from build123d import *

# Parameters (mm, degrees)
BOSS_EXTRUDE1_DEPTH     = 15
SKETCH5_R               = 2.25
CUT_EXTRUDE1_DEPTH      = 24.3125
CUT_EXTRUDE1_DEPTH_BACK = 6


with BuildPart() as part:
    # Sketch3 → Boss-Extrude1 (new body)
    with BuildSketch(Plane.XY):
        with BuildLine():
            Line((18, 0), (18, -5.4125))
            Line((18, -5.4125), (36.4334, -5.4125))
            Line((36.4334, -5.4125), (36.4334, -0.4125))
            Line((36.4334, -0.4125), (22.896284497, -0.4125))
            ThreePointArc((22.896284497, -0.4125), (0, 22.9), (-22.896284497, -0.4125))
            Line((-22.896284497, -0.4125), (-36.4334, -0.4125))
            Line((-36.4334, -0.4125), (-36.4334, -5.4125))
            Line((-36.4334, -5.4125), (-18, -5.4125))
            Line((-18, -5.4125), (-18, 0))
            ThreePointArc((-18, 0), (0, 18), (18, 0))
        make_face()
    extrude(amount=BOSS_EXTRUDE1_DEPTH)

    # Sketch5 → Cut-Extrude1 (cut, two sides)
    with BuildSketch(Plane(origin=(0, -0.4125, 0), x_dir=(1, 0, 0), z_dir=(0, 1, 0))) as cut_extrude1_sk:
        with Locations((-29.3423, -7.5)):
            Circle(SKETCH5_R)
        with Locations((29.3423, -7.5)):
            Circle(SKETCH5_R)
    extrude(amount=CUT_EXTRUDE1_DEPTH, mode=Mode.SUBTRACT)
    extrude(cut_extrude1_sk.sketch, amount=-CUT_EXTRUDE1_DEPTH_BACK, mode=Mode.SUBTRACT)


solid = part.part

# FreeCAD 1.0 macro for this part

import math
import FreeCAD as App
import Part
import Sketcher
from FreeCAD import Vector

doc = App.newDocument("Part")
body = doc.addObject("PartDesign::Body", "Body")

# Sketch on XY plane
sketch1 = body.newObject("Sketcher::SketchObject", "Sketch")
sketch1.AttachmentSupport = (doc.getObject("XY_Plane"), [""])
sketch1.MapMode = "FlatFace"
sketch1.addGeometry(Part.LineSegment(Vector(18, 0, 0), Vector(18, -5, 0)), False)
sketch1.addGeometry(Part.LineSegment(Vector(18, -5, 0), Vector(36, -5, 0)), False)
sketch1.addGeometry(Part.LineSegment(Vector(36, -5, 0), Vector(36, 0, 0)), False)
sketch1.addGeometry(Part.LineSegment(Vector(36, 0, 0), Vector(23, 0, 0)), False)
sketch1.addGeometry(Part.ArcOfCircle(Part.Circle(Vector(0, 0, 0), Vector(0, 0, 1), 23), math.radians(-1), math.radians(181)), False)
sketch1.addGeometry(Part.LineSegment(Vector(-23, 0, 0), Vector(-36, 0, 0)), False)
sketch1.addGeometry(Part.LineSegment(Vector(-36, 0, 0), Vector(-36, -5, 0)), False)
sketch1.addGeometry(Part.LineSegment(Vector(-36, -5, 0), Vector(-18, -5, 0)), False)
sketch1.addGeometry(Part.LineSegment(Vector(-18, -5, 0), Vector(-18, 0, 0)), False)
sketch1.addGeometry(Part.ArcOfCircle(Part.Circle(Vector(0, 0, 0), Vector(0, 0, 1), 18), math.radians(0), math.radians(180)), False)
sketch1.addConstraint(Sketcher.Constraint("Coincident", 0, 2, 1, 1))
sketch1.addConstraint(Sketcher.Constraint("Coincident", 1, 2, 2, 1))
sketch1.addConstraint(Sketcher.Constraint("Coincident", 2, 2, 3, 1))
sketch1.addConstraint(Sketcher.Constraint("Coincident", 3, 2, 4, 1))
sketch1.addConstraint(Sketcher.Constraint("Coincident", 4, 2, 5, 1))
sketch1.addConstraint(Sketcher.Constraint("Coincident", 5, 2, 6, 1))
sketch1.addConstraint(Sketcher.Constraint("Coincident", 6, 2, 7, 1))
sketch1.addConstraint(Sketcher.Constraint("Coincident", 7, 2, 8, 1))
sketch1.addConstraint(Sketcher.Constraint("Tangent", 8, 2, 9, 2))
sketch1.addConstraint(Sketcher.Constraint("Tangent", 9, 1, 0, 1))
sketch1.addConstraint(Sketcher.Constraint("Vertical", 0))
sketch1.addConstraint(Sketcher.Constraint("Horizontal", 1))
sketch1.addConstraint(Sketcher.Constraint("Vertical", 2))
sketch1.addConstraint(Sketcher.Constraint("Horizontal", 3))
sketch1.addConstraint(Sketcher.Constraint("Horizontal", 5))
sketch1.addConstraint(Sketcher.Constraint("Vertical", 6))
sketch1.addConstraint(Sketcher.Constraint("Horizontal", 7))
sketch1.addConstraint(Sketcher.Constraint("Vertical", 8))
sketch1.addConstraint(Sketcher.Constraint("Coincident", 4, 3, -1, 1))
sketch1.addConstraint(Sketcher.Constraint("Coincident", 9, 3, -1, 1))
sketch1.addConstraint(Sketcher.Constraint("Symmetric", 2, 2, 5, 2, -2))
sketch1.addConstraint(Sketcher.Constraint("Horizontal", 1, 2, 6, 2))
sketch1.addConstraint(Sketcher.Constraint("Radius", 9, 18.0))
sketch1.addConstraint(Sketcher.Constraint("Radius", 4, 22.9))
sketch1.addConstraint(Sketcher.Constraint("DistanceY", 2, 1, 2, 2, 5.0))
sketch1.addConstraint(Sketcher.Constraint("DistanceX", 1, 1, 1, 2, 18.4334))
sketch1.addConstraint(Sketcher.Constraint("DistanceY", 0, 2, 0, 1, 5.4125))
pad1 = body.newObject("PartDesign::Pad", "Pad")
pad1.Profile = sketch1
pad1.Length = 15

# Sketch on XZ plane
sketch2 = body.newObject("Sketcher::SketchObject", "Sketch001")
sketch2.AttachmentSupport = (doc.getObject("XZ_Plane"), [""])
sketch2.MapMode = "FlatFace"
sketch2.AttachmentOffset = App.Placement(Vector(0, 0, 0.4125), App.Rotation())
sketch2.addGeometry(Part.Circle(Vector(-29.3, 7.5, 0), Vector(0, 0, 1), 2.2), False)
sketch2.addGeometry(Part.Circle(Vector(29.3, 7.5, 0), Vector(0, 0, 1), 2.2), False)
sketch2.addConstraint(Sketcher.Constraint("Equal", 0, 1))
sketch2.addConstraint(Sketcher.Constraint("Symmetric", 0, 3, 1, 3, -2))
sketch2.addConstraint(Sketcher.Constraint("Diameter", 0, 4.5))
sketch2.addConstraint(Sketcher.Constraint("DistanceY", -1, 1, 0, 3, 7.5))
sketch2.addConstraint(Sketcher.Constraint("DistanceX", 0, 3, -1, 1, 29.3423))
pocket1 = body.newObject("PartDesign::Pocket", "Pocket")
pocket1.Profile = sketch2
pocket1.Type = "ThroughAll"
pocket1.Midplane = True

doc.recompute()
